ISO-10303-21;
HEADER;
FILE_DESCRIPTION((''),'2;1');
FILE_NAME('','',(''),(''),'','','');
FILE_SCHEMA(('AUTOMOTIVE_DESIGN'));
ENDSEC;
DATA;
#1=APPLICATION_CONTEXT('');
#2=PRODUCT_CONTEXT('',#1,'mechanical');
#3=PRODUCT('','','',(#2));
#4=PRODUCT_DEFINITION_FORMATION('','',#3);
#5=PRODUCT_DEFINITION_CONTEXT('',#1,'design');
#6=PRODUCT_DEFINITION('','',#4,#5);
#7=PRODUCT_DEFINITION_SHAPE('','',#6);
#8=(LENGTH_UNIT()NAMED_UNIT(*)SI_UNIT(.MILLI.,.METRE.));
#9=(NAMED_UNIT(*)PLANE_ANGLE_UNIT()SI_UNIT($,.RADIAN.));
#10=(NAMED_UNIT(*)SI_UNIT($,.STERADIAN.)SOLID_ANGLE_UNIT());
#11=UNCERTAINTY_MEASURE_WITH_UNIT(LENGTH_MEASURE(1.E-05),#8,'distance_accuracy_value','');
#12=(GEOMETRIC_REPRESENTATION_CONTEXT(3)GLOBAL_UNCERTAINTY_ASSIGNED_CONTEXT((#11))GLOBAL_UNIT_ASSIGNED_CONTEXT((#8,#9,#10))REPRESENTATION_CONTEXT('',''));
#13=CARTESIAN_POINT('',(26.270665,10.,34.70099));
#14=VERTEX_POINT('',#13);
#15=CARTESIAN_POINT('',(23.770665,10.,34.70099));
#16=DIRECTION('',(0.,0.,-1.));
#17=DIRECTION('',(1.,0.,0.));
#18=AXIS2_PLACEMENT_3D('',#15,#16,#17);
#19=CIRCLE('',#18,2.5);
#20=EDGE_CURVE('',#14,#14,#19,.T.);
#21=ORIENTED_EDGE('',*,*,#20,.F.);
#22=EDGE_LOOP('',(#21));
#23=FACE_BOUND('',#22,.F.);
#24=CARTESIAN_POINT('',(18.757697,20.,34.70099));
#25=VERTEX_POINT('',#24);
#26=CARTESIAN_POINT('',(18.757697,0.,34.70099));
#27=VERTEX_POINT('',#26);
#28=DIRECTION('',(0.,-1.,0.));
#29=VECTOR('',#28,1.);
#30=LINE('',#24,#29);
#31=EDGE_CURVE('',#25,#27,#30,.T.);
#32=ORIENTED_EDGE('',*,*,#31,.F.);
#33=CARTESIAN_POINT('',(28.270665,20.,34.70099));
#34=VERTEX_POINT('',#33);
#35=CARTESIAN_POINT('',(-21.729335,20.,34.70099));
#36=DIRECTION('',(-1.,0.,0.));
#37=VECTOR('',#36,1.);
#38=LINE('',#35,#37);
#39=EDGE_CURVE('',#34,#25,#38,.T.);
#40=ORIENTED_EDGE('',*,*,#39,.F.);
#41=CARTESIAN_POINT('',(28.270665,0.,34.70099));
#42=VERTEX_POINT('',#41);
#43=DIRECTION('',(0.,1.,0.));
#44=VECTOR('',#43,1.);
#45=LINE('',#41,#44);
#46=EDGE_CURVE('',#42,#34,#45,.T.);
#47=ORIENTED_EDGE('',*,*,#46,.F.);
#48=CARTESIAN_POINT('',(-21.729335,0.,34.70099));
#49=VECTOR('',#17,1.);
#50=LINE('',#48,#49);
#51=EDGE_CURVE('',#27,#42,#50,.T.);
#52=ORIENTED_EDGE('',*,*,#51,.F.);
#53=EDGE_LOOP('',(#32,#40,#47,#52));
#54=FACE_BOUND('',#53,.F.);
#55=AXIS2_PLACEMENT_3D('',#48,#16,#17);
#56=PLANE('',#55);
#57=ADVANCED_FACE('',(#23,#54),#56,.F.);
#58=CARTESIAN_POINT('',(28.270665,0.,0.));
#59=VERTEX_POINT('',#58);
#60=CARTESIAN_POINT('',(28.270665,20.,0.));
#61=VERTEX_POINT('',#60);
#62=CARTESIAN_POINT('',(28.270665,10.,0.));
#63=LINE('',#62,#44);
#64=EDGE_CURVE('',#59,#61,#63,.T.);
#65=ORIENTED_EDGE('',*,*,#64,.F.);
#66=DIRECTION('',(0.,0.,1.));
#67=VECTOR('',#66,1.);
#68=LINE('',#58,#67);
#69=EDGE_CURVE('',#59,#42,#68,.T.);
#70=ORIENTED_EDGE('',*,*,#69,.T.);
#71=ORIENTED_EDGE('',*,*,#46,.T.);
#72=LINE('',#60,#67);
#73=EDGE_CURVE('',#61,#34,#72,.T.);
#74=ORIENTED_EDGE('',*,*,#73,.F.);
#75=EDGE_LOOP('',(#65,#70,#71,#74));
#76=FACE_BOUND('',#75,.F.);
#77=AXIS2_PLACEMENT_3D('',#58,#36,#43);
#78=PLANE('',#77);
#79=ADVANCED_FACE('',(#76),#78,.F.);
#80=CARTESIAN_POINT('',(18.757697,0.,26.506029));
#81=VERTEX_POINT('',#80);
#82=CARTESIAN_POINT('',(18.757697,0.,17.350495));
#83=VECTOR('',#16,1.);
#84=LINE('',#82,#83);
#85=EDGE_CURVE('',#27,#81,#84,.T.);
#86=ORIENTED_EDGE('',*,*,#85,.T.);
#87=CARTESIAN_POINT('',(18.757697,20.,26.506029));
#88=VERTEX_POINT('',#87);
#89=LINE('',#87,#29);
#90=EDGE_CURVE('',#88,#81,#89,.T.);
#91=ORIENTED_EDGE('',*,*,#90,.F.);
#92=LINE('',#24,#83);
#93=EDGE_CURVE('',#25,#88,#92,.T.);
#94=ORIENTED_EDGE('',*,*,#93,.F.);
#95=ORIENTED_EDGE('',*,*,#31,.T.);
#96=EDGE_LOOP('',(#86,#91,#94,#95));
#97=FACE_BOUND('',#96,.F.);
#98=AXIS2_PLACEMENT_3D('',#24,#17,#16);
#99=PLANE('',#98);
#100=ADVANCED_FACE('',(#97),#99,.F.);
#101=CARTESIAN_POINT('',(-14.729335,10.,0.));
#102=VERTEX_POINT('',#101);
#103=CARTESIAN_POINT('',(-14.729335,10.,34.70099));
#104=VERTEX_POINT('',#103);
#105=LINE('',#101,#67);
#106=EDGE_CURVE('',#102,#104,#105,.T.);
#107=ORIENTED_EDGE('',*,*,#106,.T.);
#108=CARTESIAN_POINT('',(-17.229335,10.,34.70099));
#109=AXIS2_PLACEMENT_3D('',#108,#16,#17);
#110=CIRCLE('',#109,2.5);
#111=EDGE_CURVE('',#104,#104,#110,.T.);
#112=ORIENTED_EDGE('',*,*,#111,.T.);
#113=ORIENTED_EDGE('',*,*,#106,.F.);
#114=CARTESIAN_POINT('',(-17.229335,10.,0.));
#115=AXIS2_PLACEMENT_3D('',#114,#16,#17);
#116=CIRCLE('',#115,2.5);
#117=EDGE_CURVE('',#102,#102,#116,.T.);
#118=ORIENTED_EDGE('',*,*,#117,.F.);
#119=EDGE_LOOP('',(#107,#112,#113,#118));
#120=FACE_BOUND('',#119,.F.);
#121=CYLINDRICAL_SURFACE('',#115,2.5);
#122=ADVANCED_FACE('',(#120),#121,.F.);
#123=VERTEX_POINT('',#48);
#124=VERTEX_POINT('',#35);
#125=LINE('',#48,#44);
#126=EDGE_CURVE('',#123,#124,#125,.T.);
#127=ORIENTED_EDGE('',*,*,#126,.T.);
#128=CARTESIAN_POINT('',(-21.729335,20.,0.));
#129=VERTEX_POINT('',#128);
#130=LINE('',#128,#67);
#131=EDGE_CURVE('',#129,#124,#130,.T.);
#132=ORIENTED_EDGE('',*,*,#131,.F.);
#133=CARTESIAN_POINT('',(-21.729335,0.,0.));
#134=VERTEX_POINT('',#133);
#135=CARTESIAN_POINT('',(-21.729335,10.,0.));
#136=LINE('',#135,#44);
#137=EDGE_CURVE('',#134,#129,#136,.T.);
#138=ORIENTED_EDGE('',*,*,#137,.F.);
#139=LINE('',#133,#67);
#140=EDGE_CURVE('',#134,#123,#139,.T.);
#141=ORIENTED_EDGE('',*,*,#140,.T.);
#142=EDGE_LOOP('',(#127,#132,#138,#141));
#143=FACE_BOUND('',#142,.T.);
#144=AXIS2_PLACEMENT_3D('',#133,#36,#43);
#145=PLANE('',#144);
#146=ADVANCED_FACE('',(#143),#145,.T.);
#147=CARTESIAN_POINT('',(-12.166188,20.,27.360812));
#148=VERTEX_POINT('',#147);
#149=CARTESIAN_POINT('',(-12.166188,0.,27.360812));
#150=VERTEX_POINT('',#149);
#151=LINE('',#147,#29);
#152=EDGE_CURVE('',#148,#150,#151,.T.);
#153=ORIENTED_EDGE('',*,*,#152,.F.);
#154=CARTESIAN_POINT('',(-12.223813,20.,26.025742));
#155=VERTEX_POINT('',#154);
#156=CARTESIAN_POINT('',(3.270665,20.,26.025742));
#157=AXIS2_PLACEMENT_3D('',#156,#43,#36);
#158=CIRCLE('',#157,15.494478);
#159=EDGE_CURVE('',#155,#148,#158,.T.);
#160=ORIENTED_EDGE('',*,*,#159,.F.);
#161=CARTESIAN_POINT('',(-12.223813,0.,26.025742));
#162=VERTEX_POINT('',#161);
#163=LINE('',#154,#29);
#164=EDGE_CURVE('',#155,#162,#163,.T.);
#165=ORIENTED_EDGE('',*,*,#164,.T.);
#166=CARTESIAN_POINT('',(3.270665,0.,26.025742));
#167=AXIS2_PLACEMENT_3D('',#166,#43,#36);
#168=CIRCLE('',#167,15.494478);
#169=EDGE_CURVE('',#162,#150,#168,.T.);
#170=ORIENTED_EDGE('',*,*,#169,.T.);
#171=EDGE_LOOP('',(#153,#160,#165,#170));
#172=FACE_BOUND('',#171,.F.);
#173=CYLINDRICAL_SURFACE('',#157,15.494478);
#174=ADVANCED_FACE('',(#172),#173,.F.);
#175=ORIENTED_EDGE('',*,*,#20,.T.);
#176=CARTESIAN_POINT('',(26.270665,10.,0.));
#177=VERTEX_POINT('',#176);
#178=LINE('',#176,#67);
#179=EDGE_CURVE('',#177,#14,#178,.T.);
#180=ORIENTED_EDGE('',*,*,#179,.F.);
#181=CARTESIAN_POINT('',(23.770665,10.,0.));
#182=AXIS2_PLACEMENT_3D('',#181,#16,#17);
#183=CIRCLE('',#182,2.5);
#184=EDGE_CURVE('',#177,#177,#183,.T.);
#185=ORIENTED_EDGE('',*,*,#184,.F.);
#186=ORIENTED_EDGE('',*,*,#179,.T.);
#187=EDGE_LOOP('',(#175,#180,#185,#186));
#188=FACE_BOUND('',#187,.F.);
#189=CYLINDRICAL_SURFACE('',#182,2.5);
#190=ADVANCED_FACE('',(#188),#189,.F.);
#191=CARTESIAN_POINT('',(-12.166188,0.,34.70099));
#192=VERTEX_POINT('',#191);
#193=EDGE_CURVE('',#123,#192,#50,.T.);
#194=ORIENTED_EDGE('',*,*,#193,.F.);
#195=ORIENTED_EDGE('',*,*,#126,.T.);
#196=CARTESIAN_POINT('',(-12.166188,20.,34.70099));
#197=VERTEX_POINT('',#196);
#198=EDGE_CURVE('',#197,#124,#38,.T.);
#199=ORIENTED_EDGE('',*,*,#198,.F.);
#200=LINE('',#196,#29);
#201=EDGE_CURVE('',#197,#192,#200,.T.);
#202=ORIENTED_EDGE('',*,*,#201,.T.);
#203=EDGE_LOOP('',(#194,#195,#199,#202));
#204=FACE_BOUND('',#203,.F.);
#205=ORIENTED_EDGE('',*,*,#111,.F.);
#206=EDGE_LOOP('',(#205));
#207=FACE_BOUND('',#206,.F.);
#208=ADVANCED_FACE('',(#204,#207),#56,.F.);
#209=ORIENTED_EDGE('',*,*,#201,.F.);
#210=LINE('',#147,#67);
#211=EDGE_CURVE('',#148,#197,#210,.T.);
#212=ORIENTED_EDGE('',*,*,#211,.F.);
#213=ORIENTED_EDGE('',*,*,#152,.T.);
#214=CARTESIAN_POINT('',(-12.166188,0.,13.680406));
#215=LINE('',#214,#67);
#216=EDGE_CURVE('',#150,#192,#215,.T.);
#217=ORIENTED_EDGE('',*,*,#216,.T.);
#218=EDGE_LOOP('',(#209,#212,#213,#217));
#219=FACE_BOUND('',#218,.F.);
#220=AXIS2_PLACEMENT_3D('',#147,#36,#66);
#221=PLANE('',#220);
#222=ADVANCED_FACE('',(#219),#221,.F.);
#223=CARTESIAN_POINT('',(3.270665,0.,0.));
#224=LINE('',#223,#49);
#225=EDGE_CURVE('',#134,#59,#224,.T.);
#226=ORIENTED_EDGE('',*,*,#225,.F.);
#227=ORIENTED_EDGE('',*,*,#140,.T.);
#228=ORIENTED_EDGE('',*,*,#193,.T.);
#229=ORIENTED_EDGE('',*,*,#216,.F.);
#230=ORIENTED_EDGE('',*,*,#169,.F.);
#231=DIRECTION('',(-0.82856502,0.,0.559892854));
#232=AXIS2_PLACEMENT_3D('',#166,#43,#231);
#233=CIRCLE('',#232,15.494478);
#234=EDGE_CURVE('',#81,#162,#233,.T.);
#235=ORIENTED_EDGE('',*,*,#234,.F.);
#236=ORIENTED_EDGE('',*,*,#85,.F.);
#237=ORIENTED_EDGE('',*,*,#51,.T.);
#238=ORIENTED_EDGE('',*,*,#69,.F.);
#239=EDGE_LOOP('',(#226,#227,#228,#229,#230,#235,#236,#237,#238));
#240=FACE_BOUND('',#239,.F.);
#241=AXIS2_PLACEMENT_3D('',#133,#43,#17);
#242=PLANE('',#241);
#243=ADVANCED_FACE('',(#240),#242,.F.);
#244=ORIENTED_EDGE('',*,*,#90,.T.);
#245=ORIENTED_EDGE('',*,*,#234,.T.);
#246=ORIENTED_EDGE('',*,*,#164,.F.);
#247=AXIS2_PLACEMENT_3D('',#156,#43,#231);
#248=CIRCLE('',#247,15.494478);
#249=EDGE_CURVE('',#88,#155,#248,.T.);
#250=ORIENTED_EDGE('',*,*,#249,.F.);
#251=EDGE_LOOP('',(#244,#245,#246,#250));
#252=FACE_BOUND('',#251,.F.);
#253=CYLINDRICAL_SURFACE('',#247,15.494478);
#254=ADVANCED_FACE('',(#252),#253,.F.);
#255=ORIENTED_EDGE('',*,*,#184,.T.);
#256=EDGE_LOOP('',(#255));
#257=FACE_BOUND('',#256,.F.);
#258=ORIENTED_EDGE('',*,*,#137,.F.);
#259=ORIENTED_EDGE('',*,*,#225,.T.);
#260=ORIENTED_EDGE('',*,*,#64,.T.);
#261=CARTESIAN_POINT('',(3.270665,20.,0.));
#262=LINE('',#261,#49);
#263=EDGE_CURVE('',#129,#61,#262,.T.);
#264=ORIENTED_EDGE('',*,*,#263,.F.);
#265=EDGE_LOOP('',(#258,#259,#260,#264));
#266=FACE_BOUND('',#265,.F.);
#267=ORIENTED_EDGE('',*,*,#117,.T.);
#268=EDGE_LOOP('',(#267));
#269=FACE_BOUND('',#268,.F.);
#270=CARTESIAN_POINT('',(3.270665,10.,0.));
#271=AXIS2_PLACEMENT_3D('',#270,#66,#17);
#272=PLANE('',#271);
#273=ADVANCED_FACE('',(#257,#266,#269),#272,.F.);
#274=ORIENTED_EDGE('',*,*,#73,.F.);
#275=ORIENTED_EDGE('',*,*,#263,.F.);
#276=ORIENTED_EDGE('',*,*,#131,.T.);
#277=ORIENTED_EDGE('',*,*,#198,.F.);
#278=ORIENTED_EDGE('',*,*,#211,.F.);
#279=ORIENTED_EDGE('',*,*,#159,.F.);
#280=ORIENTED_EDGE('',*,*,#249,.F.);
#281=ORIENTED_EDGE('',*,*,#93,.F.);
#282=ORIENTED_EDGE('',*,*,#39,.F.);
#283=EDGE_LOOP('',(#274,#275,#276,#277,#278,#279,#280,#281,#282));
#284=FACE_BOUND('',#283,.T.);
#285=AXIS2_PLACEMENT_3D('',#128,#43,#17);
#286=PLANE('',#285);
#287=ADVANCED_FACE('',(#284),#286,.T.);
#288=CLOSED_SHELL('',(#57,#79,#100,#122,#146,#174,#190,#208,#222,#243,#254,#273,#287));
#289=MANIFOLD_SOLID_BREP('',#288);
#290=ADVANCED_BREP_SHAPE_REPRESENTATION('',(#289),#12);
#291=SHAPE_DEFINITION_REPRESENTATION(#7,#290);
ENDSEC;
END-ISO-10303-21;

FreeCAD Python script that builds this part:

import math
import FreeCAD as App
import Part
import Sketcher
Q = App.Units.Quantity


def add_polygon(sketch, points):
    """Adds a closed chain of lines whose ends are joined by coincident constraints."""
    first, n = sketch.GeometryCount, len(points)
    for a, b in zip(points, points[1:] + points[:1]):
        sketch.addGeometry(Part.LineSegment(App.Vector(*a, 0), App.Vector(*b, 0)), False)
    for i in range(n):
        sketch.addConstraint(Sketcher.Constraint("Coincident", first + i, 2, first + (i + 1) % n, 1))

doc = App.newDocument("Part")
body = doc.addObject("PartDesign::Body", "Body")

sketch1 = doc.addObject("Sketcher::SketchObject", "Sketch")
body.addObject(sketch1)
sketch1.AttachmentSupport = (doc.XY_Plane, [""])
sketch1.MapMode = "FlatFace"
add_polygon(sketch1, [(-22, 20), (-22, 0), (28, 0), (28, 20)])
sketch1.addConstraint([
    Sketcher.Constraint("Vertical", 0),
    Sketcher.Constraint("Horizontal", 1),
    Sketcher.Constraint("Vertical", 2),
    Sketcher.Constraint("Horizontal", 3),
    Sketcher.Constraint("PointOnObject", 0, 2, -1),
    Sketcher.Constraint("DistanceX", 1, 1, 1, 2, Q("50 mm")),
    Sketcher.Constraint("DistanceY", 0, 2, 0, 1, Q("20 mm")),
    Sketcher.Constraint("DistanceX", 0, 2, -1, 1, Q("21.729335 mm")),
])
pad1 = doc.addObject("PartDesign::Pad", "Pad")
body.addObject(pad1)
pad1.Profile = sketch1
pad1.Length = 60

sketch2 = doc.addObject("Sketcher::SketchObject", "Sketch001")
body.addObject(sketch2)
sketch2.AttachmentSupport = (doc.XZ_Plane, [""])
sketch2.MapMode = "FlatFace"
add_polygon(sketch2, [(-22, 60), (-22, 35), (28, 35), (28, 60)])
sketch2.addConstraint([
    Sketcher.Constraint("Vertical", 0),
    Sketcher.Constraint("Horizontal", 1),
    Sketcher.Constraint("Vertical", 2),
    Sketcher.Constraint("Horizontal", 3),
    Sketcher.Constraint("DistanceX", 1, 1, 1, 2, Q("50 mm")),
    Sketcher.Constraint("DistanceY", -1, 1, 2, 2, Q("60 mm")),
    Sketcher.Constraint("DistanceY", 0, 2, 0, 1, Q("25.29901 mm")),
    Sketcher.Constraint("DistanceX", 0, 2, -1, 1, Q("21.729335 mm")),
])
pocket1 = doc.addObject("PartDesign::Pocket", "Pocket")
body.addObject(pocket1)
pocket1.Profile = sketch2
pocket1.Length = 25

sketch3 = doc.addObject("Sketcher::SketchObject", "Sketch002")
body.addObject(sketch3)
sketch3.AttachmentSupport = (doc.XY_Plane, [""])
sketch3.MapMode = "FlatFace"
sketch3.addGeometry([
    Part.Circle(App.Vector(23.8, 10, 0), App.Vector(0, 0, 1), 2.5),
    Part.Circle(App.Vector(-17.2, 10, 0), App.Vector(0, 0, 1), 2.5),
], False)
sketch3.addConstraint([
    Sketcher.Constraint("Equal", 0, 1),
    Sketcher.Constraint("Horizontal", 0, 3, 1, 3),
    Sketcher.Constraint("Diameter", 0, Q("5 mm")),
    Sketcher.Constraint("DistanceY", -1, 1, 0, 3, Q("10 mm")),
    Sketcher.Constraint("DistanceX", 1, 3, 0, 3, Q("41 mm")),
    Sketcher.Constraint("DistanceX", -1, 1, 0, 3, Q("23.770665 mm")),
])
pocket2 = doc.addObject("PartDesign::Pocket", "Pocket001")
body.addObject(pocket2)
pocket2.Profile = sketch3
pocket2.Length = 60
pocket2.Reversed = True

sketch4 = doc.addObject("Sketcher::SketchObject", "Sketch003")
body.addObject(sketch4)
sketch4.AttachmentSupport = (doc.XZ_Plane, [""])
sketch4.MapMode = "FlatFace"
sketch4.AttachmentOffset = App.Placement(App.Vector(0, 0, -20), App.Rotation())
sketch4.addGeometry([
    Part.ArcOfCircle(Part.Circle(App.Vector(3, 26, 0), App.Vector(0, 0, 1), 15), math.radians(180), math.radians(506)),
    Part.ArcOfCircle(Part.Circle(App.Vector(3, 26, 0), App.Vector(0, 0, 1), 15), math.radians(146), math.radians(180)),
], False)
sketch4.addConstraint([
    Sketcher.Constraint("Tangent", 0, 1, 1, 2),
    Sketcher.Constraint("Coincident", 1, 1, 0, 2),
    Sketcher.Constraint("Horizontal", 1, 3, 0, 1),
    Sketcher.Constraint("Radius", 0, Q("15.494478 mm")),
    Sketcher.Constraint("DistanceY", -1, 1, 1, 1, Q("34.70099 mm")),
    Sketcher.Constraint("DistanceX", -1, 1, 0, 3, Q("3.270665 mm")),
    Sketcher.Constraint("DistanceY", -1, 1, 0, 3, Q("26.025742 mm")),
])
pocket3 = doc.addObject("PartDesign::Pocket", "Pocket002")
body.addObject(pocket3)
pocket3.Profile = sketch4
pocket3.Length = 25
pocket3.Reversed = True

sketch5 = doc.addObject("Sketcher::SketchObject", "Sketch004")
body.addObject(sketch5)
sketch5.AttachmentSupport = (doc.XZ_Plane, [""])
sketch5.MapMode = "FlatFace"
sketch5.AttachmentOffset = App.Placement(App.Vector(0, 0, -20), App.Rotation())
sketch5.addGeometry([
    Part.LineSegment(App.Vector(18.8, 34.7, 0), App.Vector(18.8, 26.5, 0)),
    Part.ArcOfCircle(Part.Circle(App.Vector(3.3, 26, 0), App.Vector(0, 0, 1), 15.5), math.radians(2), math.radians(34)),
    Part.LineSegment(App.Vector(16.1, 34.7, 0), App.Vector(18.8, 34.7, 0)),
    Part.ArcOfCircle(Part.Circle(App.Vector(3.3, 26, 0), App.Vector(0, 0, 1), 15.5), math.radians(146), math.radians(175)),
    Part.LineSegment(App.Vector(-12.2, 27.4, 0), App.Vector(-12.2, 34.7, 0)),
    Part.LineSegment(App.Vector(-12.2, 34.7, 0), App.Vector(-9.6, 34.7, 0)),
], False)
sketch5.addConstraint([
    Sketcher.Constraint("Coincident", 0, 2, 1, 1),
    Sketcher.Constraint("Coincident", 1, 2, 2, 1),
    Sketcher.Constraint("Coincident", 2, 2, 0, 1),
    Sketcher.Constraint("Coincident", 3, 2, 4, 1),
    Sketcher.Constraint("Coincident", 4, 2, 5, 1),
    Sketcher.Constraint("Coincident", 5, 2, 3, 1),
    Sketcher.Constraint("Vertical", 0),
    Sketcher.Constraint("Horizontal", 2),
    Sketcher.Constraint("Vertical", 4),
    Sketcher.Constraint("Horizontal", 5),
    Sketcher.Constraint("Coincident", 3, 3, 1, 3),
    Sketcher.Constraint("Equal", 1, 3),
    Sketcher.Constraint("Horizontal", 2, 2, 4, 2),
    Sketcher.Constraint("Radius", 1, Q("15.494478 mm")),
    Sketcher.Constraint("DistanceX", 2, 1, 2, 2, Q("2.64885 mm")),
    Sketcher.Constraint("DistanceX", 5, 1, 5, 2, Q("2.598671 mm")),
    Sketcher.Constraint("DistanceY", 0, 2, 0, 1, Q("8.19496 mm")),
    Sketcher.Constraint("DistanceY", -1, 1, 0, 2, Q("26.506029 mm")),
    Sketcher.Constraint("DistanceX", 3, 2, -1, 1, Q("12.166188 mm")),
])
pocket4 = doc.addObject("PartDesign::Pocket", "Pocket003")
body.addObject(pocket4)
pocket4.Profile = sketch5
pocket4.Length = 25
pocket4.Reversed = True

doc.recompute()
